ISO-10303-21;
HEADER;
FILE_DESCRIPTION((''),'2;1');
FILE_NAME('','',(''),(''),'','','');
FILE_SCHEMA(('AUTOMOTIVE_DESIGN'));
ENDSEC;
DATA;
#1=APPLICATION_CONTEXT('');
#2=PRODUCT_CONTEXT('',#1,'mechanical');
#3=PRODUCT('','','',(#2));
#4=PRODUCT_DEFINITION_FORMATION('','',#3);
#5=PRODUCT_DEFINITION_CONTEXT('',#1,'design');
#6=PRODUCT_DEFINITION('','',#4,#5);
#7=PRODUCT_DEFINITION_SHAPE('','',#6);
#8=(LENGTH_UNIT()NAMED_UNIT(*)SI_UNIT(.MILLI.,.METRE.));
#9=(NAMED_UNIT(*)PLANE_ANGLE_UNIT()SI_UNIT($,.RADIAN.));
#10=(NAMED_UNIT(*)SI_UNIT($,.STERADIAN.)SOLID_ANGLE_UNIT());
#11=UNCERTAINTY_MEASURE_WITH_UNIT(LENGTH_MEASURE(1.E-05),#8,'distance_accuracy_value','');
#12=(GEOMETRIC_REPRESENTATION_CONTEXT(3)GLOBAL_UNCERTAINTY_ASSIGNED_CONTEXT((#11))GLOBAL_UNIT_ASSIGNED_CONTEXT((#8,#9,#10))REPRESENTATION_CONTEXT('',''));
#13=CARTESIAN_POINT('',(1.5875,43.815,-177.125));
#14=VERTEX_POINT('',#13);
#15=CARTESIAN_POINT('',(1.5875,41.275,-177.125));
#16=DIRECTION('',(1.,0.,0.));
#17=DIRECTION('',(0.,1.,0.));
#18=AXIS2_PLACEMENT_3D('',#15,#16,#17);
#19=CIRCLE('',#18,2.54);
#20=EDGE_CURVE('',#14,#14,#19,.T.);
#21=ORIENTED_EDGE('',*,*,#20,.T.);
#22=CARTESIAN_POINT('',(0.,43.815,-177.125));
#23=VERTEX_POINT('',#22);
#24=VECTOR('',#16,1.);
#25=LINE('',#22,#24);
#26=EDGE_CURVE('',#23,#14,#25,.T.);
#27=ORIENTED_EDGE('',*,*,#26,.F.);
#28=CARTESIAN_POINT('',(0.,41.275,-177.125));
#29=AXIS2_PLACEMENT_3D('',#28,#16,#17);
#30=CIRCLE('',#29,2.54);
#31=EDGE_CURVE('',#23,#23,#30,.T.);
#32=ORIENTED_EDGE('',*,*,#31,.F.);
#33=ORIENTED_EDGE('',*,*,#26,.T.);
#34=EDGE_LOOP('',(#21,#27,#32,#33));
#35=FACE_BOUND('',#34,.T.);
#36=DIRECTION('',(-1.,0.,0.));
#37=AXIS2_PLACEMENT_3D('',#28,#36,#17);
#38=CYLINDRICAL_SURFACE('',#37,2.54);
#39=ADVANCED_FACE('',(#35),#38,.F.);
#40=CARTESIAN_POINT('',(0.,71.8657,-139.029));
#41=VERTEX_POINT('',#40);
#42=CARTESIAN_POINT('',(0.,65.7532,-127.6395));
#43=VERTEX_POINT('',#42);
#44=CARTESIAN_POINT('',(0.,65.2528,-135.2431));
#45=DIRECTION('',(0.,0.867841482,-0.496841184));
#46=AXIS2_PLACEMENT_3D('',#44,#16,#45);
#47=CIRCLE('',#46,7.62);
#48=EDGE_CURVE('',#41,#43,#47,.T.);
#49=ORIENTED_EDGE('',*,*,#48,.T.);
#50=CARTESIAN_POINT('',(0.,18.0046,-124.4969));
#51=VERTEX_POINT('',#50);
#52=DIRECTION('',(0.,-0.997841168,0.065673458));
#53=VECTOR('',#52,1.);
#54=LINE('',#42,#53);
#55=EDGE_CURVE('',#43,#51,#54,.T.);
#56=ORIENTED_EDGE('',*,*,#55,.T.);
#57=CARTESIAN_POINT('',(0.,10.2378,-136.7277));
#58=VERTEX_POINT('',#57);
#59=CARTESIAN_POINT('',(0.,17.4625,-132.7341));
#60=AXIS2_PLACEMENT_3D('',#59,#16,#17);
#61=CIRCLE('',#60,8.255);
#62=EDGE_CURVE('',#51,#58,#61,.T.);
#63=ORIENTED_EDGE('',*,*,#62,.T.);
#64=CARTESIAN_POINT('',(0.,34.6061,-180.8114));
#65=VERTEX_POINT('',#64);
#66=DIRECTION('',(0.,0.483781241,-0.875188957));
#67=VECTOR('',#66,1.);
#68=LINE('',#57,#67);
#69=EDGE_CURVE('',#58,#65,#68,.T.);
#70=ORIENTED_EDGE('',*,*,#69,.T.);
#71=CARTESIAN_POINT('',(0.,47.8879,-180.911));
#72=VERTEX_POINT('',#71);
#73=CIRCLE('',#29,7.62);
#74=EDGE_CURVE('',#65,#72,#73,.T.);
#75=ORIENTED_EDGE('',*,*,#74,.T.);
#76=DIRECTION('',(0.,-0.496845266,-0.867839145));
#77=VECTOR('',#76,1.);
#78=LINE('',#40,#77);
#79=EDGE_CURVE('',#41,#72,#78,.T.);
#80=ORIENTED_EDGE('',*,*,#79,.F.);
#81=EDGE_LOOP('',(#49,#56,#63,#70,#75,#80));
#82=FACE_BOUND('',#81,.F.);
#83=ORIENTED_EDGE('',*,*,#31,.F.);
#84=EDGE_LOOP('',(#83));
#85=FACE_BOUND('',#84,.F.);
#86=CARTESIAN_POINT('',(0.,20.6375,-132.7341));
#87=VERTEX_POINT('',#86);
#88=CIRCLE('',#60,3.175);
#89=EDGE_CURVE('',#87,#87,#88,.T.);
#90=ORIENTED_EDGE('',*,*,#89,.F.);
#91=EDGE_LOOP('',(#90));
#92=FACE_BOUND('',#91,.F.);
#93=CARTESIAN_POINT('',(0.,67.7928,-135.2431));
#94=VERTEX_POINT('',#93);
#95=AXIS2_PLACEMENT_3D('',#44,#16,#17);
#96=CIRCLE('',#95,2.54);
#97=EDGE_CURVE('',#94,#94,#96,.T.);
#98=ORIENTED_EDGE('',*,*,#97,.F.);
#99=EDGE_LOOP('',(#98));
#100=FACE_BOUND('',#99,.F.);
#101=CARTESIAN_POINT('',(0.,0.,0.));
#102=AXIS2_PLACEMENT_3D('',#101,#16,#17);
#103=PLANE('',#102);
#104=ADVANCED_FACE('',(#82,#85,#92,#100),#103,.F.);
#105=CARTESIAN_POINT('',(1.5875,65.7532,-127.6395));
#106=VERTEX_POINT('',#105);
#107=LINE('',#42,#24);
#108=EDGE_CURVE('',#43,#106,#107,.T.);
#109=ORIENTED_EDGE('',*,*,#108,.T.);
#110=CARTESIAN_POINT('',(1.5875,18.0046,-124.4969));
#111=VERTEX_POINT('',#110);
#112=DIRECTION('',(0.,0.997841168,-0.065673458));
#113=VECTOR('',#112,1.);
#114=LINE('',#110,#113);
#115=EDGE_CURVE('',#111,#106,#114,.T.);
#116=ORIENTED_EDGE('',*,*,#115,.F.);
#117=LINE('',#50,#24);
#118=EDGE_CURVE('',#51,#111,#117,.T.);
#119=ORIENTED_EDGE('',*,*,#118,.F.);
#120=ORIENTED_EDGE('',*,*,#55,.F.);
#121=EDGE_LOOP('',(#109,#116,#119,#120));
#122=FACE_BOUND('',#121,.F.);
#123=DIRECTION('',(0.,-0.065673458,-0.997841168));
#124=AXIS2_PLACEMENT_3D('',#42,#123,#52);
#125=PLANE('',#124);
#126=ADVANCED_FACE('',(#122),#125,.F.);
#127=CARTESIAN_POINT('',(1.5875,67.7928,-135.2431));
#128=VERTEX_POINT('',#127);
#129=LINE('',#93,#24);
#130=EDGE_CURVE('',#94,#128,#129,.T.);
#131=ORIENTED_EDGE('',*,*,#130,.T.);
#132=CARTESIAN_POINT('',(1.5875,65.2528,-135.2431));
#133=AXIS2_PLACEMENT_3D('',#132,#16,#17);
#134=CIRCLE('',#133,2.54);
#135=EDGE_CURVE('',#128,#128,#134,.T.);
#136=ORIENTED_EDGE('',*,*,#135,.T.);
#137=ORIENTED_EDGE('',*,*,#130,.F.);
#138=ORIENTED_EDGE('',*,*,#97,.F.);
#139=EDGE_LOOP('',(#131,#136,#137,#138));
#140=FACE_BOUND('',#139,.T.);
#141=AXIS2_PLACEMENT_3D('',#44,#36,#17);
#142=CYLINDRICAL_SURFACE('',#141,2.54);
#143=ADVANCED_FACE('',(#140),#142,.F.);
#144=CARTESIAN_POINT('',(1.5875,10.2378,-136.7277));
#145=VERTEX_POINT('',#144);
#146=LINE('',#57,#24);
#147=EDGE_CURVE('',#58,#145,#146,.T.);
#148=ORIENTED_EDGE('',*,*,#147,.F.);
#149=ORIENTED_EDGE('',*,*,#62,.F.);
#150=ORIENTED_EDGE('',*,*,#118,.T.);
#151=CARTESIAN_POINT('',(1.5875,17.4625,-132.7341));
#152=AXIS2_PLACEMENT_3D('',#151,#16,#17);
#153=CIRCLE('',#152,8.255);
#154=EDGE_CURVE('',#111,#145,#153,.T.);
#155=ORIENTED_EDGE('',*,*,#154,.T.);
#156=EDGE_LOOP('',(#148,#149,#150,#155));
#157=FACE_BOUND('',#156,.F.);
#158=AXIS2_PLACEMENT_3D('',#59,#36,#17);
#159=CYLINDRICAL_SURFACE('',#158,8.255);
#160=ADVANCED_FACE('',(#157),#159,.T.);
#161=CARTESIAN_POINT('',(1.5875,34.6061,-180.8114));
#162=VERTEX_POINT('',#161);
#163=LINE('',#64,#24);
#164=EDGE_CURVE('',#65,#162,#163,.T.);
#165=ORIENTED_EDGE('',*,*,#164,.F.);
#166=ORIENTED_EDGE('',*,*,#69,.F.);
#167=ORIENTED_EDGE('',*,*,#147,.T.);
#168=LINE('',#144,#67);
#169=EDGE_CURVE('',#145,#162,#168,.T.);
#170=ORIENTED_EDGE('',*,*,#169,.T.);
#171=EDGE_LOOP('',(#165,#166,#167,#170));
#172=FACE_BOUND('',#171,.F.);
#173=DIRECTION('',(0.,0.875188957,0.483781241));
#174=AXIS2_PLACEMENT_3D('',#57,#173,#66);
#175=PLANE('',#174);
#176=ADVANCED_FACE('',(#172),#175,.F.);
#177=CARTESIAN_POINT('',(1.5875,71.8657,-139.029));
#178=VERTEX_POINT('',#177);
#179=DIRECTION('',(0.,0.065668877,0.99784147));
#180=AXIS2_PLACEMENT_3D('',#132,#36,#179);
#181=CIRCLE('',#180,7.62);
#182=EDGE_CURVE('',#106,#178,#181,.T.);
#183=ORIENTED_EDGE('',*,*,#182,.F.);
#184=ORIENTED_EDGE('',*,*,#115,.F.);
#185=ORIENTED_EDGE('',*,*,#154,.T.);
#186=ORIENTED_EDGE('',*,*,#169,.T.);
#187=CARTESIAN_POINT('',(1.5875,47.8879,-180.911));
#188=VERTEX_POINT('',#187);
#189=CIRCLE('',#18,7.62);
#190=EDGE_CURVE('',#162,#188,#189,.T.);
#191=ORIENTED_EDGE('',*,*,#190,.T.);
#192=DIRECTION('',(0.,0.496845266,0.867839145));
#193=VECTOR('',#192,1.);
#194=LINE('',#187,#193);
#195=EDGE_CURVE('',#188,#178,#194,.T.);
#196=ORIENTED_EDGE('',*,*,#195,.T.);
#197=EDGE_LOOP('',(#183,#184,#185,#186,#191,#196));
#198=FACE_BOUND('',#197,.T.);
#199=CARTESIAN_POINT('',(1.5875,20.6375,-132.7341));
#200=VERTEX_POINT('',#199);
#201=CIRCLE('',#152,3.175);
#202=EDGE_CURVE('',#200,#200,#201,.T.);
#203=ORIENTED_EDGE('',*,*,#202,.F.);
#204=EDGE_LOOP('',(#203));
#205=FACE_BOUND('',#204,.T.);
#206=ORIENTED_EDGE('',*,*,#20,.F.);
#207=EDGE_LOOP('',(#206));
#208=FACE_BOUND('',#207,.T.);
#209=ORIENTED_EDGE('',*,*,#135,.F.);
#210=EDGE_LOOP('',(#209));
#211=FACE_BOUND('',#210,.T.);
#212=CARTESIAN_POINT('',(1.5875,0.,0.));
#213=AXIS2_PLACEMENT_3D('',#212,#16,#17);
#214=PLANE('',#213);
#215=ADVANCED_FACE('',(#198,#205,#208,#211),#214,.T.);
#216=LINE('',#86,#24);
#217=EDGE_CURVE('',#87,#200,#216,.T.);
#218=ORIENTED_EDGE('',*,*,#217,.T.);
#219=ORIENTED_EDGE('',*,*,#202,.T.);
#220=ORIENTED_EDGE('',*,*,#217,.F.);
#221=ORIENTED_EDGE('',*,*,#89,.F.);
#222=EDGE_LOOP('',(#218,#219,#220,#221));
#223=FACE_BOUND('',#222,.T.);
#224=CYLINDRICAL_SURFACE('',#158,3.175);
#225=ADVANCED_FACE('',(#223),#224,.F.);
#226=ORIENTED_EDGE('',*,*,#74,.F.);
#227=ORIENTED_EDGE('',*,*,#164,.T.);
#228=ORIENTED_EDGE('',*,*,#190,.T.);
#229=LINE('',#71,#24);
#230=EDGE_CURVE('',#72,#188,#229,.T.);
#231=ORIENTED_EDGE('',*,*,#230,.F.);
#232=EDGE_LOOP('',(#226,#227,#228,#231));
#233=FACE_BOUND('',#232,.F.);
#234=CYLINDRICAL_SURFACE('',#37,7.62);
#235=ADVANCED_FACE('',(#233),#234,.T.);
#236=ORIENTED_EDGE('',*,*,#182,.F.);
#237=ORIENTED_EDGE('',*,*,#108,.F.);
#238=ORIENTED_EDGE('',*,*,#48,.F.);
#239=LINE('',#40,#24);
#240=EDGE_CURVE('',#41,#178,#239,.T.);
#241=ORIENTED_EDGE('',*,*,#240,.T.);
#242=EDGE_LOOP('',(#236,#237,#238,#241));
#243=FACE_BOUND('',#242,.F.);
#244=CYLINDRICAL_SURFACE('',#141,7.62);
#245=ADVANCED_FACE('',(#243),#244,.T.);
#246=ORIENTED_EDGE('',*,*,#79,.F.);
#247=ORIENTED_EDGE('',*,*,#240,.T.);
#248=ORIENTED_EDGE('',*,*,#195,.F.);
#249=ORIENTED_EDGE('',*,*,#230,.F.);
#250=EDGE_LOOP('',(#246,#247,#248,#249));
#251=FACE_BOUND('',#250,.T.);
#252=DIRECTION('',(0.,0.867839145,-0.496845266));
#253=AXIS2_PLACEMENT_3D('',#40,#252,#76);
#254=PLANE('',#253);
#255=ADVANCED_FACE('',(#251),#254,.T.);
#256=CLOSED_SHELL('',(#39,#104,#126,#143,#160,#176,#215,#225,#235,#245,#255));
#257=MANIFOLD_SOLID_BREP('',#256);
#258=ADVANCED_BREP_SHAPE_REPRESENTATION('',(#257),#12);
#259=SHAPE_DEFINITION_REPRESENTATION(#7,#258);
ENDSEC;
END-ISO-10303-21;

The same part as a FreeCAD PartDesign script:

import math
import FreeCAD as App
import Part
import Sketcher

V = App.Vector
Q = App.Units.Quantity

doc = App.newDocument("Part")
body = doc.addObject("PartDesign::Body", "Body")

sketch1 = doc.addObject("Sketcher::SketchObject", "Sketch")
body.addObject(sketch1)
sketch1.AttachmentSupport = (doc.YZ_Plane, [""])
sketch1.MapMode = "FlatFace"
sketch1.addGeometry(Part.LineSegment(V(65.7532, -127.6395, 0), V(18.0046, -124.4969, 0)), False)
sketch1.addGeometry(Part.ArcOfCircle(Part.Circle(V(17.4625, -132.7341, 0), V(0, 0, 1), 8.255), math.radians(86.234726), math.radians(208.932517)), False)
sketch1.addGeometry(Part.LineSegment(V(10.2378, -136.7277, 0), V(34.6061, -180.8114, 0)), False)
sketch1.addGeometry(Part.ArcOfCircle(Part.Circle(V(41.275, -177.125, 0), V(0, 0, 1), 7.62), math.radians(-151.067287), math.radians(-29.791886)), False)
sketch1.addGeometry(Part.LineSegment(V(47.8879, -180.911, 0), V(71.8657, -139.029, 0)), False)
sketch1.addGeometry(Part.ArcOfCircle(Part.Circle(V(65.2528, -135.2431, 0), V(0, 0, 1), 7.62), math.radians(-29.791234), math.radians(86.234741)), False)
sketch1.addGeometry(Part.Circle(V(65.2528, -135.2431, 0), V(0, 0, 1), 2.54), False)
sketch1.addGeometry(Part.Circle(V(41.275, -177.125, 0), V(0, 0, 1), 2.54), False)
sketch1.addGeometry(Part.Circle(V(17.4625, -132.7341, 0), V(0, 0, 1), 3.175), False)
sketch1.addConstraint(Sketcher.Constraint("Tangent", 0, 2, 1, 1))
sketch1.addConstraint(Sketcher.Constraint("Tangent", 1, 2, 2, 1))
sketch1.addConstraint(Sketcher.Constraint("Tangent", 2, 2, 3, 1))
sketch1.addConstraint(Sketcher.Constraint("Tangent", 3, 2, 4, 1))
sketch1.addConstraint(Sketcher.Constraint("Tangent", 4, 2, 5, 1))
sketch1.addConstraint(Sketcher.Constraint("Tangent", 5, 2, 0, 1))
sketch1.addConstraint(Sketcher.Constraint("Coincident", 6, 3, 5, 3))
sketch1.addConstraint(Sketcher.Constraint("Coincident", 7, 3, 3, 3))
sketch1.addConstraint(Sketcher.Constraint("Coincident", 8, 3, 1, 3))
sketch1.addConstraint(Sketcher.Constraint("Equal", 3, 5))
sketch1.addConstraint(Sketcher.Constraint("Equal", 6, 7))
sketch1.addConstraint(Sketcher.Constraint("Diameter", 6, Q("0.2 in")))
sketch1.addConstraint(Sketcher.Constraint("Radius", 3, Q("0.3 in")))
sketch1.addConstraint(Sketcher.Constraint("Diameter", 8, Q("0.25 in")))
sketch1.addConstraint(Sketcher.Constraint("Radius", 1, Q("0.325 in")))
sketch1.addConstraint(Sketcher.Constraint("Distance", 4, Q("1.9 in")))
sketch1.addConstraint(Sketcher.Constraint("DistanceX", -1, 1, 1, 3, Q("0.6875 in")))
sketch1.addConstraint(Sketcher.Constraint("DistanceX", -1, 1, 3, 3, Q("1.625 in")))
sketch1.addConstraint(Sketcher.Constraint("DistanceX", -1, 1, 5, 3, Q("2.569 in")))
sketch1.addConstraint(Sketcher.Constraint("Distance", 2, Q("1.9831 in")))
sketch1.addConstraint(Sketcher.Constraint("DistanceY", 1, 3, -1, 1, Q("132.734 mm")))
pad1 = doc.addObject("PartDesign::Pad", "Pad")
body.addObject(pad1)
pad1.Profile = sketch1
pad1.Length = Q("0.0625 in")

doc.recompute()
